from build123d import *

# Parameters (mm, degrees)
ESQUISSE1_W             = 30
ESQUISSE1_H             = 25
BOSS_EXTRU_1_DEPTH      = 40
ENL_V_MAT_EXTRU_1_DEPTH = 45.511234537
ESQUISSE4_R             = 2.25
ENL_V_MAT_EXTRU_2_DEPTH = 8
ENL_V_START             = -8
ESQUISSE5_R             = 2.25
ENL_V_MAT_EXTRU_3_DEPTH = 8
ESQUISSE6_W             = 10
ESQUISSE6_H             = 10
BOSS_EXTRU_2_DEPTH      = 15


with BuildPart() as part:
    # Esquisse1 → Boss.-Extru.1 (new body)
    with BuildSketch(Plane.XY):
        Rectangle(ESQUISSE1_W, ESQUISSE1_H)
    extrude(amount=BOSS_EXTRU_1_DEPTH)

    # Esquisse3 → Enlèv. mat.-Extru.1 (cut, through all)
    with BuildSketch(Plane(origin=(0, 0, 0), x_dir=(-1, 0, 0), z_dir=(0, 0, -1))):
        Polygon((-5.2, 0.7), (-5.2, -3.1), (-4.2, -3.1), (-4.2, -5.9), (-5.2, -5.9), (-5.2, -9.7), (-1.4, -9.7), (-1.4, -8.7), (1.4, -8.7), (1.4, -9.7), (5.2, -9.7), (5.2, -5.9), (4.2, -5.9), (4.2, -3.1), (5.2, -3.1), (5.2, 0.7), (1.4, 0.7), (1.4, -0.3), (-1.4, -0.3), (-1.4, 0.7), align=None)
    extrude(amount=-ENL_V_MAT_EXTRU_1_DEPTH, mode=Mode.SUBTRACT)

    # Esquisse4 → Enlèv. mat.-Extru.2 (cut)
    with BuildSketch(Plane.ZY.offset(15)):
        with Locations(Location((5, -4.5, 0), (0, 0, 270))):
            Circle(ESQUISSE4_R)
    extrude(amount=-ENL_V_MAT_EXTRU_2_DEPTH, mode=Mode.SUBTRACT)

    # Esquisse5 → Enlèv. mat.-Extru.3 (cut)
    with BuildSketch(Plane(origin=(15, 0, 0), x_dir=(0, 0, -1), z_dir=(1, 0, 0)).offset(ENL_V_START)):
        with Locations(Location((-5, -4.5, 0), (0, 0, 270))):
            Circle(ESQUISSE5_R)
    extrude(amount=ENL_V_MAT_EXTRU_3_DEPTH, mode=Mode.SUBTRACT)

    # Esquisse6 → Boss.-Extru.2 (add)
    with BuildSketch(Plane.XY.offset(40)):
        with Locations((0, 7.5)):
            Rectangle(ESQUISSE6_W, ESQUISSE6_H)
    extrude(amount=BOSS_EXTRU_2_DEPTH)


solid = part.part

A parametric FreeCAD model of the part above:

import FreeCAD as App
import Part
import Sketcher
Q = App.Units.Quantity


def add_polygon(sketch, points):
    """Adds a closed chain of lines whose ends are joined by coincident constraints."""
    first, n = sketch.GeometryCount, len(points)
    for a, b in zip(points, points[1:] + points[:1]):
        sketch.addGeometry(Part.LineSegment(App.Vector(*a, 0), App.Vector(*b, 0)), False)
    for i in range(n):
        sketch.addConstraint(Sketcher.Constraint("Coincident", first + i, 2, first + (i + 1) % n, 1))

doc = App.newDocument("Part")
params = doc.addObject("Spreadsheet::Sheet", "Params")
for row, (alias, value) in enumerate([
    ("sketch1_width", "30 mm"),
    ("sketch1_height", "25 mm"),
    ("pad1_length", "40 mm"),
    ("sketch2_width", "1 mm"),
    ("sketch2_width2", "3.8 mm"),
    ("sketch2_width3", "2.8 mm"),
    ("sketch3_diameter", "4.5 mm"),
    ("pocket2_length", "8 mm"),
    ("sketch4_diameter", "4.5 mm"),
    ("pocket3_length", "8 mm"),
    ("sketch5_width", "10 mm"),
    ("pad2_length", "15 mm"),
], start=1):
    params.set(f"A{row}", alias)
    params.set(f"B{row}", "=" + value)
    params.setAlias(f"B{row}", alias)

body = doc.addObject("PartDesign::Body", "Body")

# Sketch on XY plane
sketch1 = body.newObject("Sketcher::SketchObject", "Sketch")
sketch1.AttachmentSupport = (doc.getObject("XY_Plane"), [""])
sketch1.MapMode = "FlatFace"
add_polygon(sketch1, [(-15, 12.5), (-15, -12.5), (15, -12.5), (15, 12.5)])  # lines 0-3
sketch1.addConstraint(Sketcher.Constraint("Vertical", 0))
sketch1.addConstraint(Sketcher.Constraint("Horizontal", 1))
sketch1.addConstraint(Sketcher.Constraint("Vertical", 2))
sketch1.addConstraint(Sketcher.Constraint("Horizontal", 3))
sketch1.addConstraint(Sketcher.Constraint("Symmetric", 0, 2, 2, 2, -1, 1))
sketch1.addConstraint(Sketcher.Constraint("DistanceX", 1, 1, 1, 2, Q("30 mm")))
sketch1.addConstraint(Sketcher.Constraint("DistanceY", 0, 2, 0, 1, Q("25 mm")))
sketch1.setExpression("Constraints[9]", "Params.sketch1_width")
sketch1.setExpression("Constraints[10]", "Params.sketch1_height")
pad1 = body.newObject("PartDesign::Pad", "Pad")
pad1.Profile = sketch1
pad1.setExpression("Length", "Params.pad1_length")

# Sketch on XY plane
sketch2 = body.newObject("Sketcher::SketchObject", "Sketch001")
sketch2.AttachmentSupport = (doc.getObject("XY_Plane"), [""])
sketch2.MapMode = "FlatFace"
add_polygon(sketch2, [(5.2, 0.7), (5.2, -3.1), (4.2, -3.1), (4.2, -5.9), (5.2, -5.9), (5.2, -9.7), (1.4, -9.7), (1.4, -8.7), (-1.4, -8.7), (-1.4, -9.7), (-5.2, -9.7), (-5.2, -5.9), (-4.2, -5.9), (-4.2, -3.1), (-5.2, -3.1), (-5.2, 0.7), (-1.4, 0.7), (-1.4, -0.3), (1.4, -0.3), (1.4, 0.7)])  # lines 0-19
sketch2.addConstraint(Sketcher.Constraint("Vertical", 0))
sketch2.addConstraint(Sketcher.Constraint("Horizontal", 1))
sketch2.addConstraint(Sketcher.Constraint("Vertical", 2))
sketch2.addConstraint(Sketcher.Constraint("Horizontal", 3))
sketch2.addConstraint(Sketcher.Constraint("Vertical", 4))
sketch2.addConstraint(Sketcher.Constraint("Horizontal", 5))
sketch2.addConstraint(Sketcher.Constraint("Vertical", 6))
sketch2.addConstraint(Sketcher.Constraint("Horizontal", 7))
sketch2.addConstraint(Sketcher.Constraint("Vertical", 8))
sketch2.addConstraint(Sketcher.Constraint("Horizontal", 9))
sketch2.addConstraint(Sketcher.Constraint("Vertical", 10))
sketch2.addConstraint(Sketcher.Constraint("Horizontal", 11))
sketch2.addConstraint(Sketcher.Constraint("Vertical", 12))
sketch2.addConstraint(Sketcher.Constraint("Horizontal", 13))
sketch2.addConstraint(Sketcher.Constraint("Vertical", 14))
sketch2.addConstraint(Sketcher.Constraint("Horizontal", 15))
sketch2.addConstraint(Sketcher.Constraint("Vertical", 16))
sketch2.addConstraint(Sketcher.Constraint("Horizontal", 17))
sketch2.addConstraint(Sketcher.Constraint("Vertical", 18))
sketch2.addConstraint(Sketcher.Constraint("Horizontal", 19))
sketch2.addConstraint(Sketcher.Constraint("Symmetric", 5, 2, 8, 2, -2))
sketch2.addConstraint(Sketcher.Constraint("Symmetric", 3, 2, 10, 2, -2))
sketch2.addConstraint(Sketcher.Constraint("Symmetric", 1, 2, 12, 2, -2))
sketch2.addConstraint(Sketcher.Constraint("Symmetric", 15, 2, 18, 2, -2))
sketch2.addConstraint(Sketcher.Constraint("Vertical", 0, 2, 3, 2))
sketch2.addConstraint(Sketcher.Constraint("Vertical", 10, 2, 13, 2))
sketch2.addConstraint(Sketcher.Constraint("Vertical", 8, 2, 15, 2))
sketch2.addConstraint(Sketcher.Constraint("Equal", 19, 0))
sketch2.addConstraint(Sketcher.Constraint("Equal", 17, 2))
sketch2.addConstraint(Sketcher.Constraint("Equal", 0, 4))
sketch2.addConstraint(Sketcher.Constraint("Equal", 13, 6))
sketch2.addConstraint(Sketcher.Constraint("Equal", 8, 16))
sketch2.addConstraint(Sketcher.Constraint("DistanceX", 1, 2, 1, 1, Q("1 mm")))
sketch2.addConstraint(Sketcher.Constraint("DistanceX", 5, 2, 5, 1, Q("3.8 mm")))
sketch2.addConstraint(Sketcher.Constraint("DistanceX", 7, 2, 7, 1, Q("2.8 mm")))
sketch2.addConstraint(Sketcher.Constraint("DistanceY", 0, 2, -1, 1, Q("3.1 mm")))
sketch2.setExpression("Constraints[52]", "Params.sketch2_width")
sketch2.setExpression("Constraints[53]", "Params.sketch2_width2")
sketch2.setExpression("Constraints[54]", "Params.sketch2_width3")
pocket1 = body.newObject("PartDesign::Pocket", "Pocket")
pocket1.Profile = sketch2
pocket1.Type = "ThroughAll"
pocket1.Reversed = True

# Sketch on YZ plane
sketch3 = body.newObject("Sketcher::SketchObject", "Sketch002")
sketch3.AttachmentSupport = (doc.getObject("YZ_Plane"), [""])
sketch3.MapMode = "FlatFace"
sketch3.AttachmentOffset = App.Placement(App.Vector(0, 0, -15), App.Rotation())
sketch3.addGeometry(Part.Circle(App.Vector(-4.5, 5, 0), App.Vector(0, 0, 1), 2.25), False)
sketch3.addConstraint(Sketcher.Constraint("Diameter", 0, Q("4.5 mm")))
sketch3.addConstraint(Sketcher.Constraint("DistanceY", -1, 1, 0, 3, Q("5 mm")))
sketch3.addConstraint(Sketcher.Constraint("DistanceX", 0, 3, -1, 1, Q("4.5 mm")))
sketch3.setExpression("Constraints[0]", "Params.sketch3_diameter")
pocket2 = body.newObject("PartDesign::Pocket", "Pocket001")
pocket2.Profile = sketch3
pocket2.setExpression("Length", "Params.pocket2_length")
pocket2.Reversed = True

# Sketch on YZ plane
sketch4 = body.newObject("Sketcher::SketchObject", "Sketch003")
sketch4.AttachmentSupport = (doc.getObject("YZ_Plane"), [""])
sketch4.MapMode = "FlatFace"
sketch4.AttachmentOffset = App.Placement(App.Vector(0, 0, 7), App.Rotation())
sketch4.addGeometry(Part.Circle(App.Vector(-4.5, 5, 0), App.Vector(0, 0, 1), 2.25), False)
sketch4.addConstraint(Sketcher.Constraint("Diameter", 0, Q("4.5 mm")))
sketch4.addConstraint(Sketcher.Constraint("DistanceY", -1, 1, 0, 3, Q("5 mm")))
sketch4.addConstraint(Sketcher.Constraint("DistanceX", 0, 3, -1, 1, Q("4.5 mm")))
sketch4.setExpression("Constraints[0]", "Params.sketch4_diameter")
pocket3 = body.newObject("PartDesign::Pocket", "Pocket002")
pocket3.Profile = sketch4
pocket3.setExpression("Length", "Params.pocket3_length")
pocket3.Reversed = True

# Sketch on XY plane
sketch5 = body.newObject("Sketcher::SketchObject", "Sketch004")
sketch5.AttachmentSupport = (doc.getObject("XY_Plane"), [""])
sketch5.MapMode = "FlatFace"
sketch5.AttachmentOffset = App.Placement(App.Vector(0, 0, 40), App.Rotation())
add_polygon(sketch5, [(-5, 12.5), (-5, 2.5), (5, 2.5), (5, 12.5)])  # lines 0-3
sketch5.addConstraint(Sketcher.Constraint("Vertical", 0))
sketch5.addConstraint(Sketcher.Constraint("Horizontal", 1))
sketch5.addConstraint(Sketcher.Constraint("Vertical", 2))
sketch5.addConstraint(Sketcher.Constraint("Horizontal", 3))
sketch5.addConstraint(Sketcher.Constraint("Equal", 3, 0))
sketch5.addConstraint(Sketcher.Constraint("DistanceX", 1, 1, 1, 2, Q("10 mm")))
sketch5.addConstraint(Sketcher.Constraint("DistanceX", 0, 2, -1, 1, Q("5 mm")))
sketch5.addConstraint(Sketcher.Constraint("DistanceY", -1, 1, 0, 2, Q("2.5 mm")))
sketch5.setExpression("Constraints[9]", "Params.sketch5_width")
pad2 = body.newObject("PartDesign::Pad", "Pad001")
pad2.Profile = sketch5
pad2.setExpression("Length", "Params.pad2_length")

doc.recompute()
